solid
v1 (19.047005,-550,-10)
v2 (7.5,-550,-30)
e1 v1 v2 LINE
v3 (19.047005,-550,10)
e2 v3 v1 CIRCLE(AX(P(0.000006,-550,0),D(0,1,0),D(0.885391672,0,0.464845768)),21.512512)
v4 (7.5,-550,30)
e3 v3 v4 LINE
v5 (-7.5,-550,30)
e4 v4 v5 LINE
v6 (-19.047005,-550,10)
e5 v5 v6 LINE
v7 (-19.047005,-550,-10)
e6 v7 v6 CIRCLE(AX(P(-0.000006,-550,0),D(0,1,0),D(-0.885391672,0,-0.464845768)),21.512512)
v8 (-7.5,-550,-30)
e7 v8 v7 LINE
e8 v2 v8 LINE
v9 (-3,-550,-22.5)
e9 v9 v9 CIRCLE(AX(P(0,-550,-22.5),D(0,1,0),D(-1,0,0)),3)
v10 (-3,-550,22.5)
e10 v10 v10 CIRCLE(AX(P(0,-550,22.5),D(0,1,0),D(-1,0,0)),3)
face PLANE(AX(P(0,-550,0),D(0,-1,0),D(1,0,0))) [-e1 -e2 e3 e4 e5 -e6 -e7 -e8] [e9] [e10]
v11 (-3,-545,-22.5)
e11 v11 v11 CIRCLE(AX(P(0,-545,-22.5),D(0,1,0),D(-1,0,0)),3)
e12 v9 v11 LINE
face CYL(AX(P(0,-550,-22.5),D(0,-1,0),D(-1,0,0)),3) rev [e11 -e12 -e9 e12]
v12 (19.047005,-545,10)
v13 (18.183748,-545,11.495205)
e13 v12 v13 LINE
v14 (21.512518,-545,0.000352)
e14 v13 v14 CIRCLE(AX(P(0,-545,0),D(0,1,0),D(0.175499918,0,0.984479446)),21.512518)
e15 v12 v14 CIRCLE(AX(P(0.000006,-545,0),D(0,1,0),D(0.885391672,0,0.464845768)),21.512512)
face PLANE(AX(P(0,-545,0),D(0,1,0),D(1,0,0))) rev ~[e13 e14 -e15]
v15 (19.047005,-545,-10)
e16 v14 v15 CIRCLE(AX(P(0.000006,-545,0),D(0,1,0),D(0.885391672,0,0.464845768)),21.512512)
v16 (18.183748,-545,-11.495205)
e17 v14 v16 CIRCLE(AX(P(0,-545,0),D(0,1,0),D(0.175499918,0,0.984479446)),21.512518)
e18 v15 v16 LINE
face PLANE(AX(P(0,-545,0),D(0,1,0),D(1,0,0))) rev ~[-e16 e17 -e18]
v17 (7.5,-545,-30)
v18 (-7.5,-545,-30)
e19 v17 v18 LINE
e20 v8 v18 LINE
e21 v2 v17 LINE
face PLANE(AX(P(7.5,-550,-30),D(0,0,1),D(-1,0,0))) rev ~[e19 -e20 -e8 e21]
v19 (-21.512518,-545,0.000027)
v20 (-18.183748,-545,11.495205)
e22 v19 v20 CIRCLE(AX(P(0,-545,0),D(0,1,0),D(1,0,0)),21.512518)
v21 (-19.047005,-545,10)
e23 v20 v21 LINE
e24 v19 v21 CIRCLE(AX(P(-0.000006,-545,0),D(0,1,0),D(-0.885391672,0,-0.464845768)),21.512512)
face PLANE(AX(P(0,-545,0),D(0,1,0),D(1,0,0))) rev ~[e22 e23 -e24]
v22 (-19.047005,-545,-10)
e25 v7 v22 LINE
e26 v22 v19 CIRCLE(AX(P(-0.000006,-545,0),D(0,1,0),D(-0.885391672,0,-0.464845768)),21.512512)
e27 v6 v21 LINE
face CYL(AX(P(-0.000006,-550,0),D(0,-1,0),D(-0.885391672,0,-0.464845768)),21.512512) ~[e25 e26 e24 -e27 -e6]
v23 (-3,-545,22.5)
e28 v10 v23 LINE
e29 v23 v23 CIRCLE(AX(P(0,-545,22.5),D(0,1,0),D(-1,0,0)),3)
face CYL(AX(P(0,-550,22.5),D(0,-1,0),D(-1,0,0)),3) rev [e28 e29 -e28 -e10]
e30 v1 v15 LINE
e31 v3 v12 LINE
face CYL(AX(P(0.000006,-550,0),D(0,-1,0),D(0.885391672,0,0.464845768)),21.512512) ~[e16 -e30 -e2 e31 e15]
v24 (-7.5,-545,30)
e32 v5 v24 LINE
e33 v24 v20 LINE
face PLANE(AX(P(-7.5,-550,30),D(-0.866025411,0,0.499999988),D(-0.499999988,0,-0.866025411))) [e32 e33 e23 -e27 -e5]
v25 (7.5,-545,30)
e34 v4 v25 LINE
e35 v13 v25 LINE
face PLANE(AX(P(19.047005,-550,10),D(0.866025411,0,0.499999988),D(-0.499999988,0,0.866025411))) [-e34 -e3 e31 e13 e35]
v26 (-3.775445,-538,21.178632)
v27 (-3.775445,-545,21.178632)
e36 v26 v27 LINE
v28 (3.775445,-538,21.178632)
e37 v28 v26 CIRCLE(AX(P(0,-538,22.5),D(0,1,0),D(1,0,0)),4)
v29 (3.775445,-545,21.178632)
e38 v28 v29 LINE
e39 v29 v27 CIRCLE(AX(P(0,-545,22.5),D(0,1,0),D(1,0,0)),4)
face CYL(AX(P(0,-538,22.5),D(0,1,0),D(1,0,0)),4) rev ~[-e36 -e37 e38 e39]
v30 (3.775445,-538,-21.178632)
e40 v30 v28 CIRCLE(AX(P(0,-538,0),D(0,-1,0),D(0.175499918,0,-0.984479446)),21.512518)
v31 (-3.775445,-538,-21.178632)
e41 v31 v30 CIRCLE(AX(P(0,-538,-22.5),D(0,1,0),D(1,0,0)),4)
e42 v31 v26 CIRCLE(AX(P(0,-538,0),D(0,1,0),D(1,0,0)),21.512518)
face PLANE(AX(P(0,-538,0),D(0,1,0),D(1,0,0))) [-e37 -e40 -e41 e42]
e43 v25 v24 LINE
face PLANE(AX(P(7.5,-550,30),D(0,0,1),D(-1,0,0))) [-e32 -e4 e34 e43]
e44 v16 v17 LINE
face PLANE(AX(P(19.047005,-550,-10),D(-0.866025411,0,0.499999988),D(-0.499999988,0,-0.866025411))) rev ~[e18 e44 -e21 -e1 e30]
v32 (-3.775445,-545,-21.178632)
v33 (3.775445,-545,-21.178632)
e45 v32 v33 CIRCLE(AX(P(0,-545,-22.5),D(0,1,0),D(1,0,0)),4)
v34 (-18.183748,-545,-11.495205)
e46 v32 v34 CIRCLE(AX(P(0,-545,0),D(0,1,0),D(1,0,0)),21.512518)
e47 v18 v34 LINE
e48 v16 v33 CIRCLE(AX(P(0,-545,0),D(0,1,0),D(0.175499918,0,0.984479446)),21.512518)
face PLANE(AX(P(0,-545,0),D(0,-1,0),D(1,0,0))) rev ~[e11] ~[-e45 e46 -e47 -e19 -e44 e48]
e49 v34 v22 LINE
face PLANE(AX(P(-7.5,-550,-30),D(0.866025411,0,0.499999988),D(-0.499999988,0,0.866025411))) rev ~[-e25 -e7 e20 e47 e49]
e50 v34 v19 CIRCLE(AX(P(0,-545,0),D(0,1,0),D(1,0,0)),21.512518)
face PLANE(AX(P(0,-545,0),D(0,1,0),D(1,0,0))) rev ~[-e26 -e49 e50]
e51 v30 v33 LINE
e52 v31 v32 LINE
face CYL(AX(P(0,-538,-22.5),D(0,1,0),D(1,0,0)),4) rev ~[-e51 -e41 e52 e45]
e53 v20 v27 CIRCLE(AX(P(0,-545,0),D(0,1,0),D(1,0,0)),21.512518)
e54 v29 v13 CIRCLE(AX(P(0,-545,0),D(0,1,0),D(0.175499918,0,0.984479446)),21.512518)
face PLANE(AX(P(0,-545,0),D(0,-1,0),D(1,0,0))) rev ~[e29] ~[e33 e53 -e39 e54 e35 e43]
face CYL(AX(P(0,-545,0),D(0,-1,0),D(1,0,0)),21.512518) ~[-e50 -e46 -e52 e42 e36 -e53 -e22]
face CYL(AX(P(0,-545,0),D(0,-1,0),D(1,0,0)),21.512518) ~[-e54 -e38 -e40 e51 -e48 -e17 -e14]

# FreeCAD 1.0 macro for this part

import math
import FreeCAD as App
import Part
import Sketcher

V = App.Vector
Q = App.Units.Quantity

doc = App.newDocument("Part")
params = doc.addObject("Spreadsheet::Sheet", "Params")
for row, (alias, value) in enumerate([
    ("sketch1_diameter", "8 mm"),
    ("pad1_length", "10 mm"),
    ("pad2_length", "7 mm"),
    ("sketch3_diameter", "6 mm"),
    ("sketch3_width", "15 mm"),
    ("pad3_length", "5 mm"),
], start=1):
    params.set(f"A{row}", alias)
    params.set(f"B{row}", "=" + value)
    params.setAlias(f"B{row}", alias)

body = doc.addObject("PartDesign::Body", "Body")
body.AllowCompound = True

# Sketch on XZ plane
sketch1 = body.newObject("Sketcher::SketchObject", "Sketch")
sketch1.AttachmentSupport = (doc.getObject("XZ_Plane"), [""])
sketch1.MapMode = "FlatFace"
sketch1.AttachmentOffset = App.Placement(V(0, 0, 538), App.Rotation())
sketch1.addGeometry(Part.Circle(V(0, -5.5, 0), V(0, 0, 1), 4), False)
sketch1.addGeometry(Part.Circle(V(0, -50.5, 0), V(0, 0, 1), 4), False)
sketch1.addConstraint(Sketcher.Constraint("Equal", 0, 1))
sketch1.addConstraint(Sketcher.Constraint("PointOnObject", 0, 3, -2))
sketch1.addConstraint(Sketcher.Constraint("PointOnObject", 1, 3, -2))
sketch1.addConstraint(Sketcher.Constraint("Diameter", 0, 8.0))
sketch1.addConstraint(Sketcher.Constraint("DistanceY", 1, 3, 0, 3, 45.0))
sketch1.addConstraint(Sketcher.Constraint("DistanceY", 0, 3, -1, 1, 5.5))
sketch1.setExpression("Constraints[3]", "Params.sketch1_diameter")
pad1 = body.newObject("PartDesign::Pad", "Pad")
pad1.Profile = sketch1
pad1.setExpression("Length", "Params.pad1_length")
body2 = doc.addObject("PartDesign::Body", "Body001")

# Sketch on XZ plane
sketch2 = body2.newObject("Sketcher::SketchObject", "Sketch001")
sketch2.AttachmentSupport = (doc.getObject("XZ_Plane001"), [""])
sketch2.MapMode = "FlatFace"
sketch2.AttachmentOffset = App.Placement(V(0, 0, 545), App.Rotation())
sketch2.addGeometry(Part.Circle(V(0, -28, 0), V(0, 0, 1), 21.512518), False)
sketch2.addConstraint(Sketcher.Constraint("PointOnObject", 0, 3, -2))
sketch2.addConstraint(Sketcher.Constraint("DistanceY", 0, 3, -1, 1, 28.0))
sketch2.addConstraint(Sketcher.Constraint("Diameter", 0, 43.025036))
pad2 = body2.newObject("PartDesign::Pad", "Pad001")
pad2.Profile = sketch2
pad2.setExpression("Length", "Params.pad2_length")
pad2.Reversed = True
doc.recompute()

boolean = body2.newObject("PartDesign::Boolean", "Boolean")
boolean.Type = "Cut"
boolean.addObjects([body])
body3 = doc.addObject("PartDesign::Body", "Body002")

# Sketch on XZ plane
sketch3 = body3.newObject("Sketcher::SketchObject", "Sketch002")
sketch3.AttachmentSupport = (doc.getObject("XZ_Plane002"), [""])
sketch3.MapMode = "FlatFace"
sketch3.AttachmentOffset = App.Placement(V(0, 0, 550), App.Rotation())
sketch3.addGeometry(Part.LineSegment(V(7.5, 2, 0), V(19.047005, -18, 0)), False)
sketch3.addGeometry(Part.ArcOfCircle(Part.Circle(V(0.000006, -28, 0), V(0, 0, 1), 21.512512), math.radians(-27.700241), math.radians(27.700241)), False)
sketch3.addGeometry(Part.LineSegment(V(19.047005, -38, 0), V(7.5, -58, 0)), False)
sketch3.addGeometry(Part.LineSegment(V(7.5, -58, 0), V(-7.5, -58, 0)), False)
sketch3.addGeometry(Part.LineSegment(V(-7.5, -58, 0), V(-19.047005, -38, 0)), False)
sketch3.addGeometry(Part.ArcOfCircle(Part.Circle(V(-0.000006, -28, 0), V(0, 0, 1), 21.512512), math.radians(152.299759), math.radians(207.700241)), False)
sketch3.addGeometry(Part.LineSegment(V(-19.047005, -18, 0), V(-7.5, 2, 0)), False)
sketch3.addGeometry(Part.LineSegment(V(-7.5, 2, 0), V(7.5, 2, 0)), False)
sketch3.addGeometry(Part.Circle(V(0, -50.5, 0), V(0, 0, 1), 3), False)
sketch3.addGeometry(Part.Circle(V(0, -5.5, 0), V(0, 0, 1), 3), False)
sketch3.addConstraint(Sketcher.Constraint("Coincident", 0, 2, 1, 2))
sketch3.addConstraint(Sketcher.Constraint("Coincident", 1, 1, 2, 1))
sketch3.addConstraint(Sketcher.Constraint("Coincident", 2, 2, 3, 1))
sketch3.addConstraint(Sketcher.Constraint("Coincident", 3, 2, 4, 1))
sketch3.addConstraint(Sketcher.Constraint("Coincident", 4, 2, 5, 2))
sketch3.addConstraint(Sketcher.Constraint("Coincident", 5, 1, 6, 1))
sketch3.addConstraint(Sketcher.Constraint("Coincident", 6, 2, 7, 1))
sketch3.addConstraint(Sketcher.Constraint("Coincident", 7, 2, 0, 1))
sketch3.addConstraint(Sketcher.Constraint("Horizontal", 3))
sketch3.addConstraint(Sketcher.Constraint("Horizontal", 7))
sketch3.addConstraint(Sketcher.Constraint("Equal", 1, 5))
sketch3.addConstraint(Sketcher.Constraint("Equal", 8, 9))
sketch3.addConstraint(Sketcher.Constraint("Symmetric", 1, 3, 5, 3, -2))
sketch3.addConstraint(Sketcher.Constraint("PointOnObject", 8, 3, -2))
sketch3.addConstraint(Sketcher.Constraint("PointOnObject", 9, 3, -2))
sketch3.addConstraint(Sketcher.Constraint("Parallel", 0, 4))
sketch3.addConstraint(Sketcher.Constraint("Parallel", 2, 6))
sketch3.addConstraint(Sketcher.Constraint("Horizontal", 1, 1, 4, 2))
sketch3.addConstraint(Sketcher.Constraint("Horizontal", 0, 2, 5, 1))
sketch3.addConstraint(Sketcher.Constraint("Vertical", 0, 2, 1, 1))
sketch3.addConstraint(Sketcher.Constraint("Vertical", 3, 2, 6, 2))
sketch3.addConstraint(Sketcher.Constraint("Vertical", 2, 2, 7, 2))
sketch3.addConstraint(Sketcher.Constraint("Diameter", 8, 6.0))
sketch3.addConstraint(Sketcher.Constraint("DistanceX", 3, 2, 3, 1, 15.0))
sketch3.addConstraint(Sketcher.Constraint("Angle", 0, Q("-60.000001 deg")))
sketch3.addConstraint(Sketcher.Constraint("DistanceY", 1, 3, -1, 1, 28.0))
sketch3.addConstraint(Sketcher.Constraint("DistanceY", 0, 2, -1, 1, 18.0))
sketch3.addConstraint(Sketcher.Constraint("DistanceY", 2, 2, -1, 1, 58.0))
sketch3.addConstraint(Sketcher.Constraint("DistanceY", 8, 3, 9, 3, 45.0))
sketch3.addConstraint(Sketcher.Constraint("DistanceY", 8, 3, -1, 1, 50.5))
sketch3.addConstraint(Sketcher.Constraint("Radius", 1, 21.512512))
sketch3.setExpression("Constraints[22]", "Params.sketch3_diameter")
sketch3.setExpression("Constraints[23]", "Params.sketch3_width")
pad3 = body3.newObject("PartDesign::Pad", "Pad002")
pad3.Profile = sketch3
pad3.setExpression("Length", "Params.pad3_length")
pad3.Reversed = True
doc.recompute()

boolean2 = body3.newObject("PartDesign::Boolean", "Boolean001")
boolean2.Type = "Fuse"
boolean2.addObjects([body2])
body4 = doc.addObject("PartDesign::Body", "Body003")
doc.recompute()

body3.Placement = App.Placement(V(0, 0, 28), App.Rotation(V(0, 0, 1), 0))
boolean3 = body4.newObject("PartDesign::Boolean", "Boolean002")
boolean3.Type = "Fuse"
boolean3.addObjects([body3])

doc.recompute()
